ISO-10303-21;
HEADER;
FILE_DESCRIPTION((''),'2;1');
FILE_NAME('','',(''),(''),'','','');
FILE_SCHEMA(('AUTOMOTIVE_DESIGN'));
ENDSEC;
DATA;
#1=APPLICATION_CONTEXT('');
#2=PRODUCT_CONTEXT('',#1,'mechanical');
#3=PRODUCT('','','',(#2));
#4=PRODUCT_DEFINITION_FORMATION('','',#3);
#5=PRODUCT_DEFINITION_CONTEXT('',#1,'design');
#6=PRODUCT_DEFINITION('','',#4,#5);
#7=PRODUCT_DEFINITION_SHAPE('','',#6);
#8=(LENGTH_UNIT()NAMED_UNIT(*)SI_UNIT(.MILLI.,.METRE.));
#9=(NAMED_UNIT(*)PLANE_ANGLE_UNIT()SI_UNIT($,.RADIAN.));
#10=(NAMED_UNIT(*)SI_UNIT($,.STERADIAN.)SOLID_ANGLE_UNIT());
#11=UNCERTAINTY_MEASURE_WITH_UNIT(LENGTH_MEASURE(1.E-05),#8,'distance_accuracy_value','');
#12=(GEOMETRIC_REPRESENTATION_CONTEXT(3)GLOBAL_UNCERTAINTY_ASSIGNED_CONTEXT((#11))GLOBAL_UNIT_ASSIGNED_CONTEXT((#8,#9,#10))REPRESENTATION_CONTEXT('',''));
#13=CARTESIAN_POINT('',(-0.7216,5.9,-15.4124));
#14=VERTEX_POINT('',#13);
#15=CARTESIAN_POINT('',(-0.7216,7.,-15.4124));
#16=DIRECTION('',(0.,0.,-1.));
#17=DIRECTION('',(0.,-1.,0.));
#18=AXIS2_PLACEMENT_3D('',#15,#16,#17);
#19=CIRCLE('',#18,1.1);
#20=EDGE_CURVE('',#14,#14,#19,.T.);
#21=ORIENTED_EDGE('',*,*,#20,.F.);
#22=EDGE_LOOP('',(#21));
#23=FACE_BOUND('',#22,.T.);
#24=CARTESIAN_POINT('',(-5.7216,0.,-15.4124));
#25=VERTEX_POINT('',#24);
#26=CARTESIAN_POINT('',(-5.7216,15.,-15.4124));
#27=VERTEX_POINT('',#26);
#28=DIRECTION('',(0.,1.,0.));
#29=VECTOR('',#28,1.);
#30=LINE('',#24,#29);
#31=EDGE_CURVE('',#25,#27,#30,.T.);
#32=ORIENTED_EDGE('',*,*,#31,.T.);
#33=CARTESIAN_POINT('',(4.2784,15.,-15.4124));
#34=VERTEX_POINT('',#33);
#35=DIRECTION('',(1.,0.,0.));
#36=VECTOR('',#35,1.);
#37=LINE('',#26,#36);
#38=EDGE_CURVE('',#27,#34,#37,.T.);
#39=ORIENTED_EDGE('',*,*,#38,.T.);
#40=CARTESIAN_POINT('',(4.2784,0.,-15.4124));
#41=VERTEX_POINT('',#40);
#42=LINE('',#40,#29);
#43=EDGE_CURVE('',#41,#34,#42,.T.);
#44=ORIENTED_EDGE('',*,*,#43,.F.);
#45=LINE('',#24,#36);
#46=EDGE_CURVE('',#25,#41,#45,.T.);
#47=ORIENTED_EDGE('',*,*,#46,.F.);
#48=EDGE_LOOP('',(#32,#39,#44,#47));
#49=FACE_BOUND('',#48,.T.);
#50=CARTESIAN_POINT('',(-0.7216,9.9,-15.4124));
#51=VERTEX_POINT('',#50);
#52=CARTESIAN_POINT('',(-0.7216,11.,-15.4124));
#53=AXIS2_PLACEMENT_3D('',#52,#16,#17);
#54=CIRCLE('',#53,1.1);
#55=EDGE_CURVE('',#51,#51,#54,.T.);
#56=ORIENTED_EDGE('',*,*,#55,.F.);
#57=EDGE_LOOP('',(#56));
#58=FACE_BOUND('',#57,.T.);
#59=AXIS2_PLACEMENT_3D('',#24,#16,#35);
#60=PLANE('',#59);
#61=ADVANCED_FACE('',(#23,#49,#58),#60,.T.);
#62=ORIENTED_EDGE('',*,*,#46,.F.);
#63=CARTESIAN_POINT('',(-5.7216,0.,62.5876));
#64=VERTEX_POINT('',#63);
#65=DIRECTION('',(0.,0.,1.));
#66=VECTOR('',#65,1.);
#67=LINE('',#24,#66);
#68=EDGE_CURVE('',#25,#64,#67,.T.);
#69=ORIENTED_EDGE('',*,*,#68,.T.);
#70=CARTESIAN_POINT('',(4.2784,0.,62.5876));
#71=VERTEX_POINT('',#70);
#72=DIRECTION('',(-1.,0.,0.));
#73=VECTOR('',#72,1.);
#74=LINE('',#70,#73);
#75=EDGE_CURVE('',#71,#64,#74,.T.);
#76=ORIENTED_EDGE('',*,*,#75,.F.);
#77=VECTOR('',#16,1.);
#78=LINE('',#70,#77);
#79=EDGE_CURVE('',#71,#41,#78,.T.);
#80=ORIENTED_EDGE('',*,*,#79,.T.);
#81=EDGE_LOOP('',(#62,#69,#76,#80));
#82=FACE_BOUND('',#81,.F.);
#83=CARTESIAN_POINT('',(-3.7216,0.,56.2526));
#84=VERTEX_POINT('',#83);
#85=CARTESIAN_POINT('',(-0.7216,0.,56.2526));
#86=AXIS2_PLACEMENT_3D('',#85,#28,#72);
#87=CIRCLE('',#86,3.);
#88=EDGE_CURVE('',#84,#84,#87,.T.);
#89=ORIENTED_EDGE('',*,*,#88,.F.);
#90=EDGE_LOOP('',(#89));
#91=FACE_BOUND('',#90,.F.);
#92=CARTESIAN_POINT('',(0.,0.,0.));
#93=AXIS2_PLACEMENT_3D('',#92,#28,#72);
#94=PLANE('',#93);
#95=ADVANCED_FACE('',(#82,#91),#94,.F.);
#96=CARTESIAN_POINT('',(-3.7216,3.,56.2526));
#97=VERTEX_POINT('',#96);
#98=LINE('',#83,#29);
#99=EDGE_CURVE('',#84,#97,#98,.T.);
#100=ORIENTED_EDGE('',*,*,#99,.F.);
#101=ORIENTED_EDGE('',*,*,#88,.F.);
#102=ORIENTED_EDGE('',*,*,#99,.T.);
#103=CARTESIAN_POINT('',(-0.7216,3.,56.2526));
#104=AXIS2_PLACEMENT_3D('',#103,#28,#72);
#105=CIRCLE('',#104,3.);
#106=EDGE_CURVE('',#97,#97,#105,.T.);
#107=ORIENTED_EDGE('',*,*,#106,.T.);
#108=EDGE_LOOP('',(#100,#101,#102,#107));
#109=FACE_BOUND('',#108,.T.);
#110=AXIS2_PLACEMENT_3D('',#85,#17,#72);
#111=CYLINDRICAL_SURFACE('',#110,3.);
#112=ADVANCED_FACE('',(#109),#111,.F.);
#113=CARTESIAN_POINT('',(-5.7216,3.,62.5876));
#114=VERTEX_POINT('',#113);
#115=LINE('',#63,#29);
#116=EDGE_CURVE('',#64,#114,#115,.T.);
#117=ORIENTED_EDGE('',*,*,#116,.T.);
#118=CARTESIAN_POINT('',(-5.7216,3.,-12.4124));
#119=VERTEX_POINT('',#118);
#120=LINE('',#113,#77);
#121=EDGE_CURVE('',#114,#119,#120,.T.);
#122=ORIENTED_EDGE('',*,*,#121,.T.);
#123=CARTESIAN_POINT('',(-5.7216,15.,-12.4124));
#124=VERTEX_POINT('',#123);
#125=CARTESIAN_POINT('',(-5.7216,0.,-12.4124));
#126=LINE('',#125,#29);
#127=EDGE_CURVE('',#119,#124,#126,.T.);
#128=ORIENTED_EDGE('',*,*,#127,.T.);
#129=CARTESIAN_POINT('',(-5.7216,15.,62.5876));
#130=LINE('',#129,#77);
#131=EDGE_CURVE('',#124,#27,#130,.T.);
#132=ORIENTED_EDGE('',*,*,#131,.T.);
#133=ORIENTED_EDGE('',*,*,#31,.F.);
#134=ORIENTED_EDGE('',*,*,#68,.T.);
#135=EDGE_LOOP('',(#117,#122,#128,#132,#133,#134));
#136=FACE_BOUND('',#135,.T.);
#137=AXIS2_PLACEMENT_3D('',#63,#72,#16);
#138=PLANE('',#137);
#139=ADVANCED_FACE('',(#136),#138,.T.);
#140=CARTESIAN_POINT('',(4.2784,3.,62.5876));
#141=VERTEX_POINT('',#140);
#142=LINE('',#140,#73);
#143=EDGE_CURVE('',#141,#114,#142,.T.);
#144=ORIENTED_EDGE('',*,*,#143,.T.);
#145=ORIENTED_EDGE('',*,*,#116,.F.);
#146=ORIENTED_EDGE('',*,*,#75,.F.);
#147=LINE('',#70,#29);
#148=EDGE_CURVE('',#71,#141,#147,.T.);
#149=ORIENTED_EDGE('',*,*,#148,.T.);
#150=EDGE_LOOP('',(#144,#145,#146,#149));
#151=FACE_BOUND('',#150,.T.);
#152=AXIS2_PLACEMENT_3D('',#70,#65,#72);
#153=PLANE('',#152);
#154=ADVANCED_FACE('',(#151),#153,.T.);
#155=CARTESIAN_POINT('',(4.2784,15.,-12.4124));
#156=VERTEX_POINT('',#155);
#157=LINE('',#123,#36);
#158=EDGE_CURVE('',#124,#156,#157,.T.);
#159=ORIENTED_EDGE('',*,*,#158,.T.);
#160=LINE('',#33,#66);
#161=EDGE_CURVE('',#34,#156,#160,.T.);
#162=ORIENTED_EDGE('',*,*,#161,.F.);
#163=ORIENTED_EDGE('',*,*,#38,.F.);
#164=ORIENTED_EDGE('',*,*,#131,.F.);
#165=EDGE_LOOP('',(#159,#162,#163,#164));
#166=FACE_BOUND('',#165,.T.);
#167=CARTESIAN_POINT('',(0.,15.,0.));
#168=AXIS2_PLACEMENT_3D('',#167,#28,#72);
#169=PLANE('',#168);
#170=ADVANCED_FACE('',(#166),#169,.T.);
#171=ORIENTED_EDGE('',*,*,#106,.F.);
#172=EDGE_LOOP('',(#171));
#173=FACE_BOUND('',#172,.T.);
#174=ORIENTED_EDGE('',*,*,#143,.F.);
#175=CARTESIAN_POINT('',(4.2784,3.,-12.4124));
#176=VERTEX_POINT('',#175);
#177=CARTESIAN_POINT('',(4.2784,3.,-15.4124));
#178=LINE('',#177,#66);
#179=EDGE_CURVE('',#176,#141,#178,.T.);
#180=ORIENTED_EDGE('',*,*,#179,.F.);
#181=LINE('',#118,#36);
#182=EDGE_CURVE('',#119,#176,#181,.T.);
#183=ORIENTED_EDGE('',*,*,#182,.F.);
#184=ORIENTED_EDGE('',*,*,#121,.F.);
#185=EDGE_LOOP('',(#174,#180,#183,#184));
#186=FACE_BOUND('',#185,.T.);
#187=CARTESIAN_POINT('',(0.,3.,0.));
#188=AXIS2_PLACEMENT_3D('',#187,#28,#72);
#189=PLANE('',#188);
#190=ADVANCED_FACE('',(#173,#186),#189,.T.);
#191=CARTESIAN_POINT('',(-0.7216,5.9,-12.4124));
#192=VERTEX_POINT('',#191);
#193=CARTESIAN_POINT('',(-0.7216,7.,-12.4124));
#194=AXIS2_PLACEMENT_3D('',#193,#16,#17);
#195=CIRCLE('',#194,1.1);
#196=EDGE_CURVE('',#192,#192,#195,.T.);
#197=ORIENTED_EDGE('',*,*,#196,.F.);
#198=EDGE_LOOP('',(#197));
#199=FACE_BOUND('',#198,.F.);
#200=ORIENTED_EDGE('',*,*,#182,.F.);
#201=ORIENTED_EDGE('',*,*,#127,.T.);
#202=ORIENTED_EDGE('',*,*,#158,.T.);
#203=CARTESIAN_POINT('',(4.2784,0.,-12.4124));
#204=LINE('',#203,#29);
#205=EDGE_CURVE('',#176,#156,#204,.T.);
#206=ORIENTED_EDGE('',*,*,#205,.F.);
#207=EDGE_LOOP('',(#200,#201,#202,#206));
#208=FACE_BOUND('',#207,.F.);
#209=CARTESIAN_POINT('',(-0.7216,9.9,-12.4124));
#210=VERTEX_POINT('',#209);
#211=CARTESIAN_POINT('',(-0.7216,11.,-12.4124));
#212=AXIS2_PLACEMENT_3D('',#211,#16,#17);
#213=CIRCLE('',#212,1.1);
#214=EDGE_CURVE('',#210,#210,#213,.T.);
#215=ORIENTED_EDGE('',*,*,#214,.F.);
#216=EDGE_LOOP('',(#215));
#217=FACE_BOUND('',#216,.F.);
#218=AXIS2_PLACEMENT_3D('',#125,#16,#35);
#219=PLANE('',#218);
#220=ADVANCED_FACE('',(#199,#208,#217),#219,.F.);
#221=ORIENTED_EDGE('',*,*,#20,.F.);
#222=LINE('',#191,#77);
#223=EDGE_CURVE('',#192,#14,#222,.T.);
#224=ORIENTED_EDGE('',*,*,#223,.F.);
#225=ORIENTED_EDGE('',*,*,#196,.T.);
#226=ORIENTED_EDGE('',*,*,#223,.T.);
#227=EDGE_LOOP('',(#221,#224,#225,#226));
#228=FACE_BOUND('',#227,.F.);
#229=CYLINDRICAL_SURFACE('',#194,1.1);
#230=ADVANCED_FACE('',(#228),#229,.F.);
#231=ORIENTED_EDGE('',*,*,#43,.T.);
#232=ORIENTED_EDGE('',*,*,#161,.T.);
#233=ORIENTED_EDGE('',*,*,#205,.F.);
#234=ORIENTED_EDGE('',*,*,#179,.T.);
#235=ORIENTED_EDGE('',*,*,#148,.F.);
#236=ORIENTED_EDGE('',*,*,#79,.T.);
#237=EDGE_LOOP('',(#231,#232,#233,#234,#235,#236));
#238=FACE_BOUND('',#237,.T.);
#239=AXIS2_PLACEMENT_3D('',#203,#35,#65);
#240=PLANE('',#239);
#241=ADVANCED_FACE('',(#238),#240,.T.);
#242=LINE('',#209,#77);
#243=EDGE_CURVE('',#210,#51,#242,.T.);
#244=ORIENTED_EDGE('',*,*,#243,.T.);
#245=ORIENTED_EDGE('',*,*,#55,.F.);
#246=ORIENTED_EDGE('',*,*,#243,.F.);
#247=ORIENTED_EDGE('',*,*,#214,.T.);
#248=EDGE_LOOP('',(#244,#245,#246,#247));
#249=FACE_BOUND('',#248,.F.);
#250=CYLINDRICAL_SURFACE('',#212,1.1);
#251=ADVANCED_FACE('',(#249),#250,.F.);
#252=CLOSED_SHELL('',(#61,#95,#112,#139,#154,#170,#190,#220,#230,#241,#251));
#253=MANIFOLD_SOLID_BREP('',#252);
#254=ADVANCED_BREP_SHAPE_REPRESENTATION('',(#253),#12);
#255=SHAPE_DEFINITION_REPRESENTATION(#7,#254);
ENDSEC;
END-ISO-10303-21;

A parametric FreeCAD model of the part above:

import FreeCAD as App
import Part
import Sketcher
from FreeCAD import Vector
Q = App.Units.Quantity

doc = App.newDocument("Part")
body = doc.addObject("PartDesign::Body", "Body")

# Sketch on XZ plane
sketch1 = doc.addObject("Sketcher::SketchObject", "Sketch")
body.addObject(sketch1)
sketch1.AttachmentSupport = (doc.XZ_Plane, [""])
sketch1.MapMode = "FlatFace"
sketch1.addGeometry(Part.LineSegment(Vector(-5.7, 62.6, 0), Vector(4.3, 62.6, 0)), False)
sketch1.addGeometry(Part.LineSegment(Vector(4.3, 62.6, 0), Vector(4.3, -12.4, 0)), False)
sketch1.addGeometry(Part.LineSegment(Vector(4.3, -12.4, 0), Vector(-5.7, -12.4, 0)), False)
sketch1.addGeometry(Part.LineSegment(Vector(-5.7, -12.4, 0), Vector(-5.7, 62.6, 0)), False)
sketch1.addGeometry(Part.Circle(Vector(-0.7, 56.3, 0), Vector(0, 0, 1), 3), False)
sketch1.addConstraint(Sketcher.Constraint("Coincident", 0, 2, 1, 1))
sketch1.addConstraint(Sketcher.Constraint("Coincident", 1, 2, 2, 1))
sketch1.addConstraint(Sketcher.Constraint("Coincident", 2, 2, 3, 1))
sketch1.addConstraint(Sketcher.Constraint("Coincident", 3, 2, 0, 1))
sketch1.addConstraint(Sketcher.Constraint("Horizontal", 0))
sketch1.addConstraint(Sketcher.Constraint("Vertical", 1))
sketch1.addConstraint(Sketcher.Constraint("Horizontal", 2))
sketch1.addConstraint(Sketcher.Constraint("Vertical", 3))
sketch1.addConstraint(Sketcher.Constraint("Diameter", 4, Q("6 mm")))
sketch1.addConstraint(Sketcher.Constraint("DistanceX", 0, 1, 0, 2, Q("10 mm")))
sketch1.addConstraint(Sketcher.Constraint("DistanceY", 1, 2, 1, 1, Q("75 mm")))
sketch1.addConstraint(Sketcher.Constraint("DistanceX", 4, 3, 0, 2, Q("5 mm")))
sketch1.addConstraint(Sketcher.Constraint("DistanceY", 4, 3, 0, 2, Q("6.335 mm")))
sketch1.addConstraint(Sketcher.Constraint("DistanceX", 4, 3, -1, 1, Q("0.7216 mm")))
sketch1.addConstraint(Sketcher.Constraint("DistanceY", -1, 1, 4, 3, Q("56.2526 mm")))
pad1 = doc.addObject("PartDesign::Pad", "Pad")
body.addObject(pad1)
pad1.Profile = sketch1
pad1.Length = 3
pad1.Reversed = True

# Sketch on XZ plane
sketch2 = doc.addObject("Sketcher::SketchObject", "Sketch001")
body.addObject(sketch2)
sketch2.AttachmentSupport = (doc.XZ_Plane, [""])
sketch2.MapMode = "FlatFace"
sketch2.addGeometry(Part.LineSegment(Vector(-5.7, -12.4, 0), Vector(4.3, -12.4, 0)), False)
sketch2.addGeometry(Part.LineSegment(Vector(4.3, -12.4, 0), Vector(4.3, -15.4, 0)), False)
sketch2.addGeometry(Part.LineSegment(Vector(4.3, -15.4, 0), Vector(-5.7, -15.4, 0)), False)
sketch2.addGeometry(Part.LineSegment(Vector(-5.7, -15.4, 0), Vector(-5.7, -12.4, 0)), False)
sketch2.addConstraint(Sketcher.Constraint("Coincident", 0, 2, 1, 1))
sketch2.addConstraint(Sketcher.Constraint("Coincident", 1, 2, 2, 1))
sketch2.addConstraint(Sketcher.Constraint("Coincident", 2, 2, 3, 1))
sketch2.addConstraint(Sketcher.Constraint("Coincident", 3, 2, 0, 1))
sketch2.addConstraint(Sketcher.Constraint("Horizontal", 0))
sketch2.addConstraint(Sketcher.Constraint("Vertical", 1))
sketch2.addConstraint(Sketcher.Constraint("Horizontal", 2))
sketch2.addConstraint(Sketcher.Constraint("Vertical", 3))
sketch2.addConstraint(Sketcher.Constraint("DistanceX", 0, 1, 0, 2, Q("10 mm")))
sketch2.addConstraint(Sketcher.Constraint("DistanceY", 1, 2, 1, 1, Q("3 mm")))
sketch2.addConstraint(Sketcher.Constraint("DistanceX", -1, 1, 0, 2, Q("4.2784 mm")))
sketch2.addConstraint(Sketcher.Constraint("DistanceY", 0, 2, -1, 1, Q("12.4124 mm")))
pad2 = doc.addObject("PartDesign::Pad", "Pad001")
body.addObject(pad2)
pad2.Profile = sketch2
pad2.Length = 15
pad2.Reversed = True

# Sketch on XY plane
sketch3 = doc.addObject("Sketcher::SketchObject", "Sketch002")
body.addObject(sketch3)
sketch3.AttachmentSupport = (doc.XY_Plane, [""])
sketch3.MapMode = "FlatFace"
sketch3.AttachmentOffset = App.Placement(Vector(0, 0, -12.4124), App.Rotation())
sketch3.addGeometry(Part.Circle(Vector(-0.7, 11, 0), Vector(0, 0, 1), 1.1), False)
sketch3.addGeometry(Part.Circle(Vector(-0.7, 7, 0), Vector(0, 0, 1), 1.1), False)
sketch3.addConstraint(Sketcher.Constraint("Equal", 0, 1))
sketch3.addConstraint(Sketcher.Constraint("Vertical", 0, 3, 1, 3))
sketch3.addConstraint(Sketcher.Constraint("Diameter", 0, Q("2.2 mm")))
sketch3.addConstraint(Sketcher.Constraint("DistanceY", -1, 1, 0, 3, Q("11 mm")))
sketch3.addConstraint(Sketcher.Constraint("DistanceY", -1, 1, 1, 3, Q("7 mm")))
sketch3.addConstraint(Sketcher.Constraint("DistanceX", 0, 3, -1, 1, Q("0.7216 mm")))
doc.recompute()
hole = doc.addObject("PartDesign::Hole", "Hole")
body.addObject(hole)
hole.Profile = sketch3
hole.ThreadType = "None"
hole.Diameter = 2.2
hole.DepthType = "ThroughAll"

doc.recompute()
